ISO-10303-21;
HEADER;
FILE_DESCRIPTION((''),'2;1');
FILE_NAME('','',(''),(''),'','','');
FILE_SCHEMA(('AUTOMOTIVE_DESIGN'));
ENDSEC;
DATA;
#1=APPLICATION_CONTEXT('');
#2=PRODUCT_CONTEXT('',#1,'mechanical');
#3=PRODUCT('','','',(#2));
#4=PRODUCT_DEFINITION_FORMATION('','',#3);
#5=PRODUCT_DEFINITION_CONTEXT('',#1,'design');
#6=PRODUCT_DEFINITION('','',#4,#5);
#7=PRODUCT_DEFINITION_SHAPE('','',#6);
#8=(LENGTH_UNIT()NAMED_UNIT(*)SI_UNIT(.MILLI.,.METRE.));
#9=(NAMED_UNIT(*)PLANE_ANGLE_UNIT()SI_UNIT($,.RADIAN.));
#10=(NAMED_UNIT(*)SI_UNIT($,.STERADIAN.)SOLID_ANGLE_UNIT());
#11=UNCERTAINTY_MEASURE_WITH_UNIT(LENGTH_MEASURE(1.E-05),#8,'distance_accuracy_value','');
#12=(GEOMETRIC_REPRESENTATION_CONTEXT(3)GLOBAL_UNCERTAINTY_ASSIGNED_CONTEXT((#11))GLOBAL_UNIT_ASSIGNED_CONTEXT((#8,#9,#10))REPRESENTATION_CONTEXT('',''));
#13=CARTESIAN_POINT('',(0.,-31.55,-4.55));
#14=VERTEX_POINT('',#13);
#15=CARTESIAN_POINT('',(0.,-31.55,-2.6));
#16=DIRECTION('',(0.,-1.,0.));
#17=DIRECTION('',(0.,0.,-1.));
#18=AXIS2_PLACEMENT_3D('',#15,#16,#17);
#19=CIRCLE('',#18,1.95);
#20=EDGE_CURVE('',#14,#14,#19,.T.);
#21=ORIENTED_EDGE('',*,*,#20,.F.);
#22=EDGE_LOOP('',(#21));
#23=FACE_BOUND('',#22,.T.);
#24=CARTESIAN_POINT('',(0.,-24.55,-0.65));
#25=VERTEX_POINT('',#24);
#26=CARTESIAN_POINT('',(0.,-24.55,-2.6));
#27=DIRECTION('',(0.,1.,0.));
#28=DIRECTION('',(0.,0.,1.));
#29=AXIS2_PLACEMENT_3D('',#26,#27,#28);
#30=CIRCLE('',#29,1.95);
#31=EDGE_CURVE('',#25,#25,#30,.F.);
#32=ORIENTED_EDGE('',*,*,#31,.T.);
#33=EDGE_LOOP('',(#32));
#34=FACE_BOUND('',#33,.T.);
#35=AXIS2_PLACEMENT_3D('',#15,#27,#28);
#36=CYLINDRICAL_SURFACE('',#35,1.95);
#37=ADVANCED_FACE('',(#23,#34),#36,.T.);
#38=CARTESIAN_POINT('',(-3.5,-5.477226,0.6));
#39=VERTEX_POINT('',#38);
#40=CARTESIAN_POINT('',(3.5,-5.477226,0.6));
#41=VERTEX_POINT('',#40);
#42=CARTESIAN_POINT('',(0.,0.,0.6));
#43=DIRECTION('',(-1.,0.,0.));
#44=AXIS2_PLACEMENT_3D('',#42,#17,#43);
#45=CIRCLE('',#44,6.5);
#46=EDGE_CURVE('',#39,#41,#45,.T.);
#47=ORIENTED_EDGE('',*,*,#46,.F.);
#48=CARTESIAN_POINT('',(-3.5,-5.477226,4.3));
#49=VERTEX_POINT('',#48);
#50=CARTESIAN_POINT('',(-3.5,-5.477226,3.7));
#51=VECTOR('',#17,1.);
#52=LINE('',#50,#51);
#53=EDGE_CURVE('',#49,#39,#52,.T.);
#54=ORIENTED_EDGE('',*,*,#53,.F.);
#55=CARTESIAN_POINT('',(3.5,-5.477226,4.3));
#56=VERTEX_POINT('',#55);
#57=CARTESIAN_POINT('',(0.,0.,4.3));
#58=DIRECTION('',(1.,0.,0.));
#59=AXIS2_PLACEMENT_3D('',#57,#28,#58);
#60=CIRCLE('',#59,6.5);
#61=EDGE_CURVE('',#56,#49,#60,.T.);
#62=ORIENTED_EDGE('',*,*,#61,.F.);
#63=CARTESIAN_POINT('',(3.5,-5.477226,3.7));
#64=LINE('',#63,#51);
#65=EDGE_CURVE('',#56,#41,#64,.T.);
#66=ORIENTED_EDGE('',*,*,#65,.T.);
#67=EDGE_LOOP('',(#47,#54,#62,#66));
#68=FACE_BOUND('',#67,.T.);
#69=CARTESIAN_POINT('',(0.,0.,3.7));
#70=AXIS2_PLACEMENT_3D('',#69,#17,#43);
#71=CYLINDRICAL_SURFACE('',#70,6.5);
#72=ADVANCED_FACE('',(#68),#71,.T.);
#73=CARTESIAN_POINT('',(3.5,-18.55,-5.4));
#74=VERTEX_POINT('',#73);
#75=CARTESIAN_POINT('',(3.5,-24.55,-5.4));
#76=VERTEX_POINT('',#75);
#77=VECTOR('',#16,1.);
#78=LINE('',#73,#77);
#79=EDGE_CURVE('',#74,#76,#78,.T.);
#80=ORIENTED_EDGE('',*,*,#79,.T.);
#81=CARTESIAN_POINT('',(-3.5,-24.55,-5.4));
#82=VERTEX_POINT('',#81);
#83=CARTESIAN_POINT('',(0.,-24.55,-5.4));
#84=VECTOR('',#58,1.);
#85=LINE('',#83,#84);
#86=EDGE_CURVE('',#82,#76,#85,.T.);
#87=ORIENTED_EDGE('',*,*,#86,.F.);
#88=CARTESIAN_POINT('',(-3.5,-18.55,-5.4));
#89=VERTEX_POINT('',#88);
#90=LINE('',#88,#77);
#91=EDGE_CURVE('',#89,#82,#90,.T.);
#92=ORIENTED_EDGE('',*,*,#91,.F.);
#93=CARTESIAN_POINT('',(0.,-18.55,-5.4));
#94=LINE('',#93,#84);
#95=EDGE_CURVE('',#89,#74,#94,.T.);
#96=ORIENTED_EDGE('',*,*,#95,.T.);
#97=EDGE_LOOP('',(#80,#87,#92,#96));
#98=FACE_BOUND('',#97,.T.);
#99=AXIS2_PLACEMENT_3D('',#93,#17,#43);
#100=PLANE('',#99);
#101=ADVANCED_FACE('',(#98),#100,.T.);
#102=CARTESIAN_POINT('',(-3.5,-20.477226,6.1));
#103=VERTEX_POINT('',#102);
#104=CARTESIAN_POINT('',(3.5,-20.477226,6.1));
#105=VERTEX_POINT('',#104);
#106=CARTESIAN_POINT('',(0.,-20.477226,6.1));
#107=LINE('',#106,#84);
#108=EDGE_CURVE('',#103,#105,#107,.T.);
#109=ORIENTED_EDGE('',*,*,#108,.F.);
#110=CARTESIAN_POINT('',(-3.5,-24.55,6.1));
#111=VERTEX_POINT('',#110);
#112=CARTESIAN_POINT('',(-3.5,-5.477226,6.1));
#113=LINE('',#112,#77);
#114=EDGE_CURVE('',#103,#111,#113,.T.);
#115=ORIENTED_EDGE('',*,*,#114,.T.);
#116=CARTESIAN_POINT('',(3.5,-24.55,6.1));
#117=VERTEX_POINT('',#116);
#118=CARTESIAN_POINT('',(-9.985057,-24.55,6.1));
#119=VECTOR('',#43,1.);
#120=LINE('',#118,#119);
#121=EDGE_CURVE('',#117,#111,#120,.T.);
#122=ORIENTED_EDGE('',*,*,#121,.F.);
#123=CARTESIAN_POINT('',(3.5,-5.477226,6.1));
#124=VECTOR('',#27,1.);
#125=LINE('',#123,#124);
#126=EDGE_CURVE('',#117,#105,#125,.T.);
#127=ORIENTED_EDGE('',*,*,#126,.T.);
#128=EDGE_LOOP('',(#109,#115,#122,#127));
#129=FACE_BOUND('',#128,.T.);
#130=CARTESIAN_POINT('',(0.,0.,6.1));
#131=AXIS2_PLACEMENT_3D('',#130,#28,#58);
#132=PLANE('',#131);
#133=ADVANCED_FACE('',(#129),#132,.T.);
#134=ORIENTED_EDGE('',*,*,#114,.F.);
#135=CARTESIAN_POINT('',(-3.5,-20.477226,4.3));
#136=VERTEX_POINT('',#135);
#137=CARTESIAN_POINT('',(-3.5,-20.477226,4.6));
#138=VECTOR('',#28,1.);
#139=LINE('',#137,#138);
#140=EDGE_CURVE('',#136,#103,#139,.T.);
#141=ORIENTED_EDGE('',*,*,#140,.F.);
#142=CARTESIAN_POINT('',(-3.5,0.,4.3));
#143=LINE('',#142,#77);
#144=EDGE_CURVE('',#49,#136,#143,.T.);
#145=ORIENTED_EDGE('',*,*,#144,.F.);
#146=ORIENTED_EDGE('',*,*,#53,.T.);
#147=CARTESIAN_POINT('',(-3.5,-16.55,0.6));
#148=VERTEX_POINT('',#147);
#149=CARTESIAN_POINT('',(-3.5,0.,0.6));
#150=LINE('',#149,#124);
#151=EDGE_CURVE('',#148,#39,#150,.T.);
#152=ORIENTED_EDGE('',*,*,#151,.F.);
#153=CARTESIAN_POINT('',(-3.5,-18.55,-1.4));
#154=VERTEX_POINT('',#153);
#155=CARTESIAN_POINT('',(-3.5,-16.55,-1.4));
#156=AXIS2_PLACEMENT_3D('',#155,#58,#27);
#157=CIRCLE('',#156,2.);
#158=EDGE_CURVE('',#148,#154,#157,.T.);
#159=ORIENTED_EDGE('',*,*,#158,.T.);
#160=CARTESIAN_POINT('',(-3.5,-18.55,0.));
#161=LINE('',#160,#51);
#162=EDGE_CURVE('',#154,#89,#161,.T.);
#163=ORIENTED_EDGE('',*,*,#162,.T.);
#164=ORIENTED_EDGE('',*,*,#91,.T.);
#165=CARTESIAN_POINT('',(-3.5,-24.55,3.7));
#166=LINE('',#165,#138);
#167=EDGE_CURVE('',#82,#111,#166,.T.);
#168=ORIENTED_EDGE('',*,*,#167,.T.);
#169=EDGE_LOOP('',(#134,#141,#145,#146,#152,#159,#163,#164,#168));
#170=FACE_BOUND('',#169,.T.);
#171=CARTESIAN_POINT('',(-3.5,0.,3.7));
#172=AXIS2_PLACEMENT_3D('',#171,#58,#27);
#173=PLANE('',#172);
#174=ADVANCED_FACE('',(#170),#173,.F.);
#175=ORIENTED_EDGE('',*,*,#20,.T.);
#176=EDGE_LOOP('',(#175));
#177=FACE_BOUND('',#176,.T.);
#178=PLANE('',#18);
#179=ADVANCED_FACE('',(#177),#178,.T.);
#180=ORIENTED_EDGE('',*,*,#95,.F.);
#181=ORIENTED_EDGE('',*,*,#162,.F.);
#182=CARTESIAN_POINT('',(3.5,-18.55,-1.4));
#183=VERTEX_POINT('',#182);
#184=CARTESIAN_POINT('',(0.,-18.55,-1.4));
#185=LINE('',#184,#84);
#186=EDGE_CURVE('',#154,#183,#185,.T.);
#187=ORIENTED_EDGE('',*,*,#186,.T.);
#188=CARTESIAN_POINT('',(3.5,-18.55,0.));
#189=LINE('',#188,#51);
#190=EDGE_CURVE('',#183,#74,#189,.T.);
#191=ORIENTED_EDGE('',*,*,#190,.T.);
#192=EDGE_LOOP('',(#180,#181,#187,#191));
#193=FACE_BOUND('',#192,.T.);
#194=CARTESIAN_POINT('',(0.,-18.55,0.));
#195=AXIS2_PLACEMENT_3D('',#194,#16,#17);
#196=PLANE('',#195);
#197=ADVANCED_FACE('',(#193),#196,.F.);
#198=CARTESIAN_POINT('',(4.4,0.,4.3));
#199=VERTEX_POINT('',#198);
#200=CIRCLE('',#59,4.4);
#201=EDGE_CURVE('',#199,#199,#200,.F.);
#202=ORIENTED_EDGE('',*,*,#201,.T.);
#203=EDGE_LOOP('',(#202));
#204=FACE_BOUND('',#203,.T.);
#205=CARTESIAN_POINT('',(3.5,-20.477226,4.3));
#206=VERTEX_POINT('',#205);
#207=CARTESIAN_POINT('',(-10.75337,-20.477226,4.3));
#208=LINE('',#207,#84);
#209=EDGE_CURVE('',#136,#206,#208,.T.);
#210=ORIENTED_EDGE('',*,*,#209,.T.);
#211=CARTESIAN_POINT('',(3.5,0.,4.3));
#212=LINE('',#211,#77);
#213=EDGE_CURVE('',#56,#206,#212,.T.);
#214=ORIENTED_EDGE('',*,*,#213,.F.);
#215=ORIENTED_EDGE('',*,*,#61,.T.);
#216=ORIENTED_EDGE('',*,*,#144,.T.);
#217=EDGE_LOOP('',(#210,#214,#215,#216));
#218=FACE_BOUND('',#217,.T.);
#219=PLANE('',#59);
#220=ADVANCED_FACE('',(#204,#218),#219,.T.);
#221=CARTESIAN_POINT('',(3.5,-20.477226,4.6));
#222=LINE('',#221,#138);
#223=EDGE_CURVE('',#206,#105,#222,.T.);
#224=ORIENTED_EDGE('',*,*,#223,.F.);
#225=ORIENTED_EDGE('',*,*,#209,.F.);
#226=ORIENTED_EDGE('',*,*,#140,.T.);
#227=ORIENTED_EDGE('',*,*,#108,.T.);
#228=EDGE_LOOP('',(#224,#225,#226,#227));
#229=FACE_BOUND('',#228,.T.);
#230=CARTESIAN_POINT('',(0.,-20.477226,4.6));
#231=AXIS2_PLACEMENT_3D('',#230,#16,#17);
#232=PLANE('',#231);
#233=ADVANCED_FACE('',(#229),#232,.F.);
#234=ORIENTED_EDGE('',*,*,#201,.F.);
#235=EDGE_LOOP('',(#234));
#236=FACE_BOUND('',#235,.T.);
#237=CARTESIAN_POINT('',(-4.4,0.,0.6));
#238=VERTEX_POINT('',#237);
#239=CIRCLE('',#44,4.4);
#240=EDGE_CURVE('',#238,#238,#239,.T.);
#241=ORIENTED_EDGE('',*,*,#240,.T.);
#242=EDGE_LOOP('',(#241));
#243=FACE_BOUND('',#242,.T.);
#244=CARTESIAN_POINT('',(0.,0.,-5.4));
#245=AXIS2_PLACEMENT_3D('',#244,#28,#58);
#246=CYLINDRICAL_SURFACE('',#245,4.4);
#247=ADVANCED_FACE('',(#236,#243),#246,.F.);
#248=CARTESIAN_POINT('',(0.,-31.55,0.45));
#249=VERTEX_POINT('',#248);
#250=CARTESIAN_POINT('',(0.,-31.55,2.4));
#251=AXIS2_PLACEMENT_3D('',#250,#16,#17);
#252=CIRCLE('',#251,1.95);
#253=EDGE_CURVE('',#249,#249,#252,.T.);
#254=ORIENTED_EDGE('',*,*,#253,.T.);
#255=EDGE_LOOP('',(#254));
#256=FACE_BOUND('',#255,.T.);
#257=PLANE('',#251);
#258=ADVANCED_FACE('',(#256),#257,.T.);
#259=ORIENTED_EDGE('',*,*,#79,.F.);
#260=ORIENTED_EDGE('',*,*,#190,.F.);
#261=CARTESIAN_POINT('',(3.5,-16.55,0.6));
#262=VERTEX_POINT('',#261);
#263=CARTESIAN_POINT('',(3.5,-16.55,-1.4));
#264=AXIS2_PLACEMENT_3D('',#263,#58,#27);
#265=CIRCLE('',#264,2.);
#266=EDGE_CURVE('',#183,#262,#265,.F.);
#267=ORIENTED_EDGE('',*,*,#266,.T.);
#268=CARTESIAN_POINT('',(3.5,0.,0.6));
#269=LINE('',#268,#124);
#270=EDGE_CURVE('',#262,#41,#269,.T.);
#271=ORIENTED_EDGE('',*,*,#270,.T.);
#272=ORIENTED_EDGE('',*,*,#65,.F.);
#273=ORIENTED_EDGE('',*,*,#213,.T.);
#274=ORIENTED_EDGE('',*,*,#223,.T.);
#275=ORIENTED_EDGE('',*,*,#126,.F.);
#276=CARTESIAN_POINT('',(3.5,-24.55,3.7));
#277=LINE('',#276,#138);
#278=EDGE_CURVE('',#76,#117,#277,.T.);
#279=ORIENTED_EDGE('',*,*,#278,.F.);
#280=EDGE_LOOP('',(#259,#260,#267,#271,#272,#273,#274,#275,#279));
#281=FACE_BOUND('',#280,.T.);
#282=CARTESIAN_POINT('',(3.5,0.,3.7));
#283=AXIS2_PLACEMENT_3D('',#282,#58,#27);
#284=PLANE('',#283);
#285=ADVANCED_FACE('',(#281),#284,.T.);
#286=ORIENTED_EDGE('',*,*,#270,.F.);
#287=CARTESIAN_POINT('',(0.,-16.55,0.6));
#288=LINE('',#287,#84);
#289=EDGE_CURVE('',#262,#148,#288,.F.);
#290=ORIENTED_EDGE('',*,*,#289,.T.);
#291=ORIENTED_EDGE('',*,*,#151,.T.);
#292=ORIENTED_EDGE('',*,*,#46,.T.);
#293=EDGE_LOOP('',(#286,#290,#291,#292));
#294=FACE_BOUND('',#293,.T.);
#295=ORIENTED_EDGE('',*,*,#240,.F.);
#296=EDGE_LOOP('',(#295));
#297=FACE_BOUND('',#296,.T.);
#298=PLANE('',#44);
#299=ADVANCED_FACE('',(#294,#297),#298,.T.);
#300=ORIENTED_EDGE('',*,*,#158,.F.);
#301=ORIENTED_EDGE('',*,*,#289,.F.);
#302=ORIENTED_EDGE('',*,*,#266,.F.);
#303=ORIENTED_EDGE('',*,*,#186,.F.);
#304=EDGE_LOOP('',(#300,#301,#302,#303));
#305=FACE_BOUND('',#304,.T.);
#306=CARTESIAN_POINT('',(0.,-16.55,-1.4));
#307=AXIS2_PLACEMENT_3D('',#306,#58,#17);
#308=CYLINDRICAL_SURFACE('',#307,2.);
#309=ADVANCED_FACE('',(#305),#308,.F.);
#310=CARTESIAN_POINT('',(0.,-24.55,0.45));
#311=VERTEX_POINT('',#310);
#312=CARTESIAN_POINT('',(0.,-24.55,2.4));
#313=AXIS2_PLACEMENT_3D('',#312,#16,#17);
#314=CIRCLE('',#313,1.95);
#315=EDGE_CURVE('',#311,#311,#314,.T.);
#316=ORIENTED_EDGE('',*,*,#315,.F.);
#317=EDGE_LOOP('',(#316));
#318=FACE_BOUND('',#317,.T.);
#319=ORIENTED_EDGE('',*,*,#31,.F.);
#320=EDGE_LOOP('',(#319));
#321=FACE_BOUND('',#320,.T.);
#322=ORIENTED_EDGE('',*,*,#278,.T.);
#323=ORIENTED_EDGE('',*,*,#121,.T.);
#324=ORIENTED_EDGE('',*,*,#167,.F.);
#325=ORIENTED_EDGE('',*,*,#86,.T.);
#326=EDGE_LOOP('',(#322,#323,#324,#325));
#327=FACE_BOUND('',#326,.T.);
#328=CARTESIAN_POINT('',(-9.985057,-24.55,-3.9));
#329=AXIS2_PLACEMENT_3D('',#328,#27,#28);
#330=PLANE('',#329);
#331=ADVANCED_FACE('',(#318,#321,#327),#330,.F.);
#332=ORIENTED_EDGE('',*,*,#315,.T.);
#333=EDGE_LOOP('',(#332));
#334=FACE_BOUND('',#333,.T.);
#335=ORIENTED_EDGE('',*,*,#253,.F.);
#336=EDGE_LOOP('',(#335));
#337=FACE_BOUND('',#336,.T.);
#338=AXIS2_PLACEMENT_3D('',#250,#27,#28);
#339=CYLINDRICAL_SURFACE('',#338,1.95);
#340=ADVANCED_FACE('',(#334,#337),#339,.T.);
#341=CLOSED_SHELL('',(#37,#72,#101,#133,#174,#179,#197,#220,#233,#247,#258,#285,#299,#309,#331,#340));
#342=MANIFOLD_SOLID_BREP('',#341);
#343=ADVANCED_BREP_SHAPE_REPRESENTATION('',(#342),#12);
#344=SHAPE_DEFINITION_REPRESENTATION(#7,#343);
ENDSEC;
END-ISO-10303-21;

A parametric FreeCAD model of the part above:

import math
import FreeCAD as App
import Part
import Sketcher

V = App.Vector


def edges_at(feature, points):
    """Names of the edges that pass closest to the given points."""
    edges = feature.Shape.Edges
    near = lambda p: min(range(len(edges)), key=lambda i: edges[i].distToShape(Part.Vertex(*p))[0])
    return sorted({f"Edge{near(p) + 1}" for p in points})


def add_polygon(sketch, points):
    """Adds a closed chain of lines whose ends are joined by coincident constraints."""
    first, n = sketch.GeometryCount, len(points)
    for a, b in zip(points, points[1:] + points[:1]):
        sketch.addGeometry(Part.LineSegment(App.Vector(*a, 0), App.Vector(*b, 0)), False)
    for i in range(n):
        sketch.addConstraint(Sketcher.Constraint("Coincident", first + i, 2, first + (i + 1) % n, 1))

doc = App.newDocument("Part")
params = doc.addObject("Spreadsheet::Sheet", "Params")
for row, (alias, value) in enumerate([
    ("sketch1_diameter", "5.9 mm"),
    ("sketch1_radius", "6.5 mm"),
    ("sketch1_radius2", "3.5 mm"),
    ("sketch1_radius3", "5.5 mm"),
    ("pad1_length", "3.7 mm"),
    ("sketch2_height", "0.6 mm"),
    ("sketch2_width", "16.95 mm"),
    ("sketch3_diameter", "3 mm"),
    ("sketch3_diameter2", "5.9 mm"),
    ("pad2_length", "3.1 mm"),
    ("sketch4_diameter", "5 mm"),
    ("pocket2_length", "1.5 mm"),
    ("sketch5_diameter", "3 mm"),
    ("sketch5_radius", "6.5 mm"),
    ("sketch5_radius2", "5.5 mm"),
    ("sketch5_radius3", "3.5 mm"),
    ("pad3_length", "0.4 mm"),
    ("sketch6_diameter", "5.9 mm"),
    ("sketch6_radius", "6.5 mm"),
    ("sketch6_radius2", "5.5 mm"),
    ("sketch6_radius3", "3.5 mm"),
    ("pad4_length", "2.4 mm"),
    ("pocket3_length", "0.6 mm"),
    ("sketch8_diameter", "3 mm"),
    ("sketch8_radius", "6.5 mm"),
    ("sketch8_radius2", "3.5 mm"),
    ("sketch8_radius3", "5.5 mm"),
    ("pad5_length", "2.6 mm"),
    ("sketch9_diameter", "11 mm"),
    ("sketch9_diameter2", "7 mm"),
    ("pad6_length", "5.5 mm"),
    ("sketch10_width", "7 mm"),
    ("pocket4_length", "5.5 mm"),
    ("pocket5_length", "10 mm"),
    ("sketch12_width", "7 mm"),
    ("sketch12_height", "6 mm"),
    ("pad7_length", "6 mm"),
    ("fillet_radius", "2 mm"),
    ("sketch13_diameter", "3.9 mm"),
    ("pad8_length", "7 mm"),
    ("sketch14_diameter", "5.9 mm"),
    ("sketch14_radius", "6.5 mm"),
    ("sketch14_radius2", "5.5 mm"),
    ("sketch14_radius3", "3.5 mm"),
    ("sketch14_height", "15 mm"),
    ("pocket6_length", "1.5 mm"),
    ("sketch15_diameter", "5.9 mm"),
    ("sketch15_radius", "6.5 mm"),
    ("sketch15_width", "7 mm"),
    ("sketch15_height", "15 mm"),
    ("pad9_length", "4 mm"),
    ("sketch16_diameter", "8.8 mm"),
    ("pocket8_length", "0.3 mm"),
], start=1):
    params.set(f"A{row}", alias)
    params.set(f"B{row}", "=" + value)
    params.setAlias(f"B{row}", alias)

body = doc.addObject("PartDesign::Body", "Body")

# Sketch on XY plane
sketch1 = body.newObject("Sketcher::SketchObject", "Sketch")
sketch1.AttachmentSupport = (doc.getObject("XY_Plane"), [""])
sketch1.MapMode = "FlatFace"
sketch1.addGeometry([
    Part.LineSegment(V(3.5, -29.522774, 0), V(3.5, -5.477226, 0)),  # 0
    Part.ArcOfCircle(Part.Circle(V(0, 0, 0), V(0, 0, 1), 6.5), math.radians(-57.42103), math.radians(0)),  # 1
    Part.ArcOfCircle(Part.Circle(V(0, 0, 0), V(0, 0, 1), 6.5), math.radians(0), math.radians(237.42103)),  # 2
    Part.LineSegment(V(-3.5, -5.477226, 0), V(-3.5, -29.522774, 0)),  # 3
    Part.ArcOfCircle(Part.Circle(V(0, -35, 0), V(0, 0, 1), 6.5), math.radians(122.57897), math.radians(360)),  # 4
    Part.ArcOfCircle(Part.Circle(V(0, -35, 0), V(0, 0, 1), 6.5), math.radians(0), math.radians(57.42103)),  # 5
    Part.LineSegment(V(-5.5, -35, 0), V(-3.5, -35, 0)),  # 6
    Part.ArcOfCircle(Part.Circle(V(0, -35, 0), V(0, 0, 1), 3.5), math.radians(180), math.radians(244.623066)),  # 7
    Part.LineSegment(V(-1.5, -38.162278, 0), V(-1.5, -40.291503, 0)),  # 8
    Part.ArcOfCircle(Part.Circle(V(0, -35, 0), V(0, 0, 1), 5.5), math.radians(180), math.radians(254.17338)),  # 9
    Part.ArcOfCircle(Part.Circle(V(0, -35, 0), V(0, 0, 1), 3.5), math.radians(-64.623066), math.radians(0)),  # 10
    Part.LineSegment(V(3.5, -35, 0), V(5.5, -35, 0)),  # 11
    Part.ArcOfCircle(Part.Circle(V(0, -35, 0), V(0, 0, 1), 5.5), math.radians(-74.17338), math.radians(0)),  # 12
    Part.LineSegment(V(1.5, -40.291503, 0), V(1.5, -38.162278, 0)),  # 13
    Part.Circle(V(0, -35, 0), V(0, 0, 1), 2.95),  # 14
    Part.ArcOfCircle(Part.Circle(V(0, 0, 0), V(0, 0, 1), 5.5), math.radians(105.82662), math.radians(180)),  # 15
    Part.LineSegment(V(-1.5, 5.291503, 0), V(-1.5, 3.162278, 0)),  # 16
    Part.ArcOfCircle(Part.Circle(V(0, 0, 0), V(0, 0, 1), 3.5), math.radians(115.376934), math.radians(180)),  # 17
    Part.LineSegment(V(-3.5, 0, 0), V(-5.5, 0, 0)),  # 18
    Part.Circle(V(0, 0, 0), V(0, 0, 1), 2.95),  # 19
    Part.LineSegment(V(5.5, 0, 0), V(3.5, 0, 0)),  # 20
    Part.ArcOfCircle(Part.Circle(V(0, 0, 0), V(0, 0, 1), 3.5), math.radians(0), math.radians(64.623066)),  # 21
    Part.LineSegment(V(1.5, 3.162278, 0), V(1.5, 5.291503, 0)),  # 22
    Part.ArcOfCircle(Part.Circle(V(0, 0, 0), V(0, 0, 1), 5.5), math.radians(0), math.radians(74.17338)),  # 23
], False)
sketch1.addConstraint([
    Sketcher.Constraint("Coincident", 0, 2, 1, 1),
    Sketcher.Constraint("Tangent", 1, 2, 2, 1),
    Sketcher.Constraint("Coincident", 2, 2, 3, 1),
    Sketcher.Constraint("Coincident", 3, 2, 4, 1),
    Sketcher.Constraint("Tangent", 4, 2, 5, 1),
    Sketcher.Constraint("Coincident", 5, 2, 0, 1),
    Sketcher.Constraint("Coincident", 6, 2, 7, 1),
    Sketcher.Constraint("Coincident", 7, 2, 8, 1),
    Sketcher.Constraint("Coincident", 8, 2, 9, 2),
    Sketcher.Constraint("Coincident", 9, 1, 6, 1),
    Sketcher.Constraint("Coincident", 10, 2, 11, 1),
    Sketcher.Constraint("Coincident", 11, 2, 12, 2),
    Sketcher.Constraint("Coincident", 12, 1, 13, 1),
    Sketcher.Constraint("Coincident", 13, 2, 10, 1),
    Sketcher.Constraint("Coincident", 15, 1, 16, 1),
    Sketcher.Constraint("Coincident", 16, 2, 17, 1),
    Sketcher.Constraint("Coincident", 17, 2, 18, 1),
    Sketcher.Constraint("Coincident", 18, 2, 15, 2),
    Sketcher.Constraint("Coincident", 20, 2, 21, 1),
    Sketcher.Constraint("Coincident", 21, 2, 22, 1),
    Sketcher.Constraint("Coincident", 22, 2, 23, 2),
    Sketcher.Constraint("Coincident", 23, 1, 20, 1),
    Sketcher.Constraint("Vertical", 0),
    Sketcher.Constraint("Vertical", 3),
    Sketcher.Constraint("Horizontal", 6),
    Sketcher.Constraint("Vertical", 8),
    Sketcher.Constraint("Horizontal", 11),
    Sketcher.Constraint("Vertical", 13),
    Sketcher.Constraint("Vertical", 16),
    Sketcher.Constraint("Horizontal", 18),
    Sketcher.Constraint("Horizontal", 20),
    Sketcher.Constraint("Vertical", 22),
    Sketcher.Constraint("Coincident", 1, 3, -1, 1),
    Sketcher.Constraint("Coincident", 15, 3, -1, 1),
    Sketcher.Constraint("Coincident", 17, 3, -1, 1),
    Sketcher.Constraint("Coincident", 19, 3, -1, 1),
    Sketcher.Constraint("Coincident", 21, 3, -1, 1),
    Sketcher.Constraint("Coincident", 23, 3, -1, 1),
    Sketcher.Constraint("Coincident", 7, 3, 4, 3),
    Sketcher.Constraint("Coincident", 9, 3, 4, 3),
    Sketcher.Constraint("Coincident", 10, 3, 4, 3),
    Sketcher.Constraint("Coincident", 12, 3, 4, 3),
    Sketcher.Constraint("Coincident", 14, 3, 4, 3),
    Sketcher.Constraint("Equal", 1, 2),
    Sketcher.Constraint("Equal", 2, 4),
    Sketcher.Constraint("Equal", 4, 5),
    Sketcher.Constraint("Equal", 7, 10),
    Sketcher.Constraint("Equal", 9, 12),
    Sketcher.Constraint("Equal", 12, 15),
    Sketcher.Constraint("Equal", 10, 17),
    Sketcher.Constraint("Equal", 14, 19),
    Sketcher.Constraint("Equal", 17, 21),
    Sketcher.Constraint("Equal", 15, 23),
    Sketcher.Constraint("Symmetric", 3, 2, 5, 2, -2),
    Sketcher.Constraint("PointOnObject", 1, 2, -1),
    Sketcher.Constraint("PointOnObject", 17, 2, -1),
    Sketcher.Constraint("PointOnObject", 20, 2, -1),
    Sketcher.Constraint("Horizontal", 14, 3, 4, 2),
    Sketcher.Constraint("Horizontal", 4, 2, 6, 2),
    Sketcher.Constraint("Horizontal", 9, 1, 10, 2),
    Sketcher.Constraint("Horizontal", 8, 2, 12, 1),
    Sketcher.Constraint("Horizontal", 16, 2, 21, 2),
    Sketcher.Constraint("Vertical", 3, 2, 6, 2),
    Sketcher.Constraint("Vertical", 8, 2, 15, 1),
    Sketcher.Constraint("Diameter", 14, 5.9),
    Sketcher.Constraint("Radius", 1, 6.5),
    Sketcher.Constraint("Radius", 7, 3.5),
    Sketcher.Constraint("Radius", 9, 5.5),
    Sketcher.Constraint("DistanceY", 4, 3, -1, 1, 35.0),
    Sketcher.Constraint("DistanceX", 9, 1, 7, 2, 4.0),
])
sketch1.setExpression("Constraints[64]", "Params.sketch1_diameter")
sketch1.setExpression("Constraints[65]", "Params.sketch1_radius")
sketch1.setExpression("Constraints[66]", "Params.sketch1_radius2")
sketch1.setExpression("Constraints[67]", "Params.sketch1_radius3")
pad1 = body.newObject("PartDesign::Pad", "Pad")
pad1.Profile = sketch1
pad1.setExpression("Length", "Params.pad1_length")

# Sketch on YZ plane
sketch2 = body.newObject("Sketcher::SketchObject", "Sketch001")
sketch2.AttachmentSupport = (doc.getObject("YZ_Plane"), [""])
sketch2.MapMode = "FlatFace"
add_polygon(sketch2, [(-24.55, 3.7), (-41.5, 3.7), (-41.5, 3.1), (-24.55, 3.1)])  # lines 0-3
sketch2.addConstraint([
    Sketcher.Constraint("Horizontal", 0),
    Sketcher.Constraint("Vertical", 1),
    Sketcher.Constraint("Horizontal", 2),
    Sketcher.Constraint("Vertical", 3),
    Sketcher.Constraint("DistanceY", 1, 2, 1, 1, 0.6),
    Sketcher.Constraint("DistanceX", 0, 2, 0, 1, 16.95),
    Sketcher.Constraint("DistanceX", 0, 2, -1, 1, 41.5),
    Sketcher.Constraint("DistanceY", -1, 1, 0, 2, 3.7),
])
sketch2.setExpression("Constraints[8]", "Params.sketch2_height")
sketch2.setExpression("Constraints[9]", "Params.sketch2_width")
pocket1 = body.newObject("PartDesign::Pocket", "Pocket")
pocket1.Profile = sketch2
pocket1.Type = "ThroughAll"
pocket1.Midplane = True

# Sketch on XY plane
sketch3 = body.newObject("Sketcher::SketchObject", "Sketch002")
sketch3.AttachmentSupport = (doc.getObject("XY_Plane"), [""])
sketch3.MapMode = "FlatFace"
sketch3.addGeometry([
    Part.Circle(V(0, -35, 0), V(0, 0, 1), 2.95),
    Part.Circle(V(0, -35, 0), V(0, 0, 1), 1.5),
], False)
sketch3.addConstraint([
    Sketcher.Constraint("Coincident", 1, 3, 0, 3),
    Sketcher.Constraint("PointOnObject", 0, 3, -2),
    Sketcher.Constraint("Diameter", 1, 3.0),
    Sketcher.Constraint("Diameter", 0, 5.9),
    Sketcher.Constraint("DistanceY", 0, 3, -1, 1, 35.0),
])
sketch3.setExpression("Constraints[2]", "Params.sketch3_diameter")
sketch3.setExpression("Constraints[3]", "Params.sketch3_diameter2")
pad2 = body.newObject("PartDesign::Pad", "Pad001")
pad2.Profile = sketch3
pad2.setExpression("Length", "Params.pad2_length")

# Sketch on XY plane
sketch4 = body.newObject("Sketcher::SketchObject", "Sketch003")
sketch4.AttachmentSupport = (doc.getObject("XY_Plane"), [""])
sketch4.MapMode = "FlatFace"
sketch4.addGeometry(Part.Circle(V(0, -35, 0), V(0, 0, 1), 2.5), False)
sketch4.addConstraint([
    Sketcher.Constraint("PointOnObject", 0, 3, -2),
    Sketcher.Constraint("Diameter", 0, 5.0),
    Sketcher.Constraint("DistanceY", 0, 3, -1, 1, 35.0),
])
sketch4.setExpression("Constraints[1]", "Params.sketch4_diameter")
pocket2 = body.newObject("PartDesign::Pocket", "Pocket001")
pocket2.Profile = sketch4
pocket2.setExpression("Length", "Params.pocket2_length")
pocket2.Reversed = True

# Sketch on XY plane
sketch5 = body.newObject("Sketcher::SketchObject", "Sketch004")
sketch5.AttachmentSupport = (doc.getObject("XY_Plane"), [""])
sketch5.MapMode = "FlatFace"
sketch5.AttachmentOffset = App.Placement(V(0, 0, 3.1), App.Rotation())
sketch5.addGeometry([
    Part.LineSegment(V(3.5, -24.55, 0), V(-3.5, -24.55, 0)),  # 0
    Part.LineSegment(V(-3.5, -24.55, 0), V(-3.5, -29.522774, 0)),  # 1
    Part.ArcOfCircle(Part.Circle(V(0, -35, 0), V(0, 0, 1), 6.5), math.radians(122.57897), math.radians(417.42103)),  # 2
    Part.LineSegment(V(3.5, -29.522774, 0), V(3.5, -24.55, 0)),  # 3
    Part.ArcOfCircle(Part.Circle(V(0, -35, 0), V(0, 0, 1), 5.5), math.radians(180), math.radians(254.17338)),  # 4
    Part.LineSegment(V(-5.5, -35, 0), V(-3.5, -35, 0)),  # 5
    Part.ArcOfCircle(Part.Circle(V(0, -35, 0), V(0, 0, 1), 3.5), math.radians(180), math.radians(244.623066)),  # 6
    Part.LineSegment(V(-1.5, -38.162278, 0), V(-1.5, -40.291503, 0)),  # 7
    Part.LineSegment(V(1.5, -40.291503, 0), V(1.5, -38.162278, 0)),  # 8
    Part.ArcOfCircle(Part.Circle(V(0, -35, 0), V(0, 0, 1), 3.5), math.radians(-64.623066), math.radians(0)),  # 9
    Part.LineSegment(V(3.5, -35, 0), V(5.5, -35, 0)),  # 10
    Part.ArcOfCircle(Part.Circle(V(0, -35, 0), V(0, 0, 1), 5.5), math.radians(-74.17338), math.radians(0)),  # 11
    Part.Circle(V(0, -35, 0), V(0, 0, 1), 1.5),  # 12
], False)
sketch5.addConstraint([
    Sketcher.Constraint("Coincident", 0, 2, 1, 1),
    Sketcher.Constraint("Coincident", 1, 2, 2, 1),
    Sketcher.Constraint("Coincident", 2, 2, 3, 1),
    Sketcher.Constraint("Coincident", 3, 2, 0, 1),
    Sketcher.Constraint("Coincident", 4, 1, 5, 1),
    Sketcher.Constraint("Coincident", 5, 2, 6, 1),
    Sketcher.Constraint("Coincident", 6, 2, 7, 1),
    Sketcher.Constraint("Coincident", 7, 2, 4, 2),
    Sketcher.Constraint("Coincident", 8, 2, 9, 1),
    Sketcher.Constraint("Coincident", 9, 2, 10, 1),
    Sketcher.Constraint("Coincident", 10, 2, 11, 2),
    Sketcher.Constraint("Coincident", 11, 1, 8, 1),
    Sketcher.Constraint("Horizontal", 0),
    Sketcher.Constraint("Vertical", 1),
    Sketcher.Constraint("Vertical", 3),
    Sketcher.Constraint("Horizontal", 5),
    Sketcher.Constraint("Vertical", 7),
    Sketcher.Constraint("Vertical", 8),
    Sketcher.Constraint("Horizontal", 10),
    Sketcher.Constraint("Coincident", 4, 3, 2, 3),
    Sketcher.Constraint("Coincident", 6, 3, 2, 3),
    Sketcher.Constraint("Coincident", 9, 3, 2, 3),
    Sketcher.Constraint("Coincident", 11, 3, 2, 3),
    Sketcher.Constraint("Coincident", 12, 3, 2, 3),
    Sketcher.Constraint("Equal", 6, 9),
    Sketcher.Constraint("Equal", 4, 11),
    Sketcher.Constraint("Symmetric", 1, 2, 2, 2, -2),
    Sketcher.Constraint("Horizontal", 12, 3, 4, 1),
    Sketcher.Constraint("Horizontal", 6, 2, 8, 2),
    Sketcher.Constraint("Horizontal", 5, 2, 9, 2),
    Sketcher.Constraint("Vertical", 1, 2, 5, 2),
    Sketcher.Constraint("Diameter", 12, 3.0),
    Sketcher.Constraint("Radius", 2, 6.5),
    Sketcher.Constraint("Radius", 4, 5.5),
    Sketcher.Constraint("Radius", 6, 3.5),
    Sketcher.Constraint("DistanceY", 2, 3, -1, 1, 35.0),
    Sketcher.Constraint("DistanceX", 6, 2, 8, 2, 3.0),
    Sketcher.Constraint("DistanceY", 0, 2, -1, 1, 24.55),
])
sketch5.setExpression("Constraints[31]", "Params.sketch5_diameter")
sketch5.setExpression("Constraints[32]", "Params.sketch5_radius")
sketch5.setExpression("Constraints[33]", "Params.sketch5_radius2")
sketch5.setExpression("Constraints[34]", "Params.sketch5_radius3")
pad3 = body.newObject("PartDesign::Pad", "Pad002")
pad3.Profile = sketch5
pad3.setExpression("Length", "Params.pad3_length")

# Sketch on XY plane
sketch6 = body.newObject("Sketcher::SketchObject", "Sketch005")
sketch6.AttachmentSupport = (doc.getObject("XY_Plane"), [""])
sketch6.MapMode = "FlatFace"
sketch6.AttachmentOffset = App.Placement(V(0, 0, 3.7), App.Rotation())
sketch6.addGeometry([
    Part.LineSegment(V(-3.5, -5.477226, 0), V(-3.5, -24.55, 0)),  # 0
    Part.LineSegment(V(-3.5, -24.55, 0), V(3.5, -24.55, 0)),  # 1
    Part.LineSegment(V(3.5, -24.55, 0), V(3.5, -5.477226, 0)),  # 2
    Part.ArcOfCircle(Part.Circle(V(0, 0, 0), V(0, 0, 1), 6.5), math.radians(-57.42103), math.radians(237.42103)),  # 3
    Part.Circle(V(0, 0, 0), V(0, 0, 1), 2.95),  # 4
    Part.ArcOfCircle(Part.Circle(V(0, 0, 0), V(0, 0, 1), 5.5), math.radians(105.82662), math.radians(180)),  # 5
    Part.LineSegment(V(-1.5, 5.291503, 0), V(-1.5, 3.162278, 0)),  # 6
    Part.ArcOfCircle(Part.Circle(V(0, 0, 0), V(0, 0, 1), 3.5), math.radians(115.376934), math.radians(180)),  # 7
    Part.LineSegment(V(-3.5, 0, 0), V(-5.5, 0, 0)),  # 8
    Part.LineSegment(V(1.5, 3.162278, 0), V(1.5, 5.291503, 0)),  # 9
    Part.ArcOfCircle(Part.Circle(V(0, 0, 0), V(0, 0, 1), 5.5), math.radians(0), math.radians(74.17338)),  # 10
    Part.LineSegment(V(5.5, 0, 0), V(3.5, 0, 0)),  # 11
    Part.ArcOfCircle(Part.Circle(V(0, 0, 0), V(0, 0, 1), 3.5), math.radians(0), math.radians(64.623066)),  # 12
], False)
sketch6.addConstraint([
    Sketcher.Constraint("Coincident", 0, 2, 1, 1),
    Sketcher.Constraint("Coincident", 1, 2, 2, 1),
    Sketcher.Constraint("Coincident", 2, 2, 3, 1),
    Sketcher.Constraint("Coincident", 3, 2, 0, 1),
    Sketcher.Constraint("Coincident", 5, 1, 6, 1),
    Sketcher.Constraint("Coincident", 6, 2, 7, 1),
    Sketcher.Constraint("Coincident", 7, 2, 8, 1),
    Sketcher.Constraint("Coincident", 8, 2, 5, 2),
    Sketcher.Constraint("Coincident", 9, 2, 10, 2),
    Sketcher.Constraint("Coincident", 10, 1, 11, 1),
    Sketcher.Constraint("Coincident", 11, 2, 12, 1),
    Sketcher.Constraint("Coincident", 12, 2, 9, 1),
    Sketcher.Constraint("Vertical", 0),
    Sketcher.Constraint("Horizontal", 1),
    Sketcher.Constraint("Vertical", 2),
    Sketcher.Constraint("Vertical", 6),
    Sketcher.Constraint("Horizontal", 8),
    Sketcher.Constraint("Vertical", 9),
    Sketcher.Constraint("Horizontal", 11),
    Sketcher.Constraint("Coincident", 3, 3, -1, 1),
    Sketcher.Constraint("Coincident", 4, 3, -1, 1),
    Sketcher.Constraint("Coincident", 5, 3, -1, 1),
    Sketcher.Constraint("Coincident", 7, 3, -1, 1),
    Sketcher.Constraint("Coincident", 10, 3, -1, 1),
    Sketcher.Constraint("Coincident", 12, 3, -1, 1),
    Sketcher.Constraint("Equal", 5, 10),
    Sketcher.Constraint("Equal", 7, 12),
    Sketcher.Constraint("PointOnObject", 7, 2, -1),
    Sketcher.Constraint("PointOnObject", 10, 1, -1),
    Sketcher.Constraint("Horizontal", 2, 2, 3, 2),
    Sketcher.Constraint("Horizontal", 5, 1, 9, 2),
    Sketcher.Constraint("Vertical", 3, 2, 7, 2),
    Sketcher.Constraint("Diameter", 4, 5.9),
    Sketcher.Constraint("Radius", 3, 6.5),
    Sketcher.Constraint("Radius", 5, 5.5),
    Sketcher.Constraint("Radius", 7, 3.5),
    Sketcher.Constraint("DistanceX", 8, 2, 6, 2, 4.0),
    Sketcher.Constraint("DistanceY", 0, 2, -1, 1, 24.55),
])
sketch6.setExpression("Constraints[32]", "Params.sketch6_diameter")
sketch6.setExpression("Constraints[33]", "Params.sketch6_radius")
sketch6.setExpression("Constraints[34]", "Params.sketch6_radius2")
sketch6.setExpression("Constraints[35]", "Params.sketch6_radius3")
pad4 = body.newObject("PartDesign::Pad", "Pad003")
pad4.Profile = sketch6
pad4.setExpression("Length", "Params.pad4_length")

# Sketch on XY plane
sketch7 = body.newObject("Sketcher::SketchObject", "Sketch006")
sketch7.AttachmentSupport = (doc.getObject("XY_Plane"), [""])
sketch7.MapMode = "FlatFace"
add_polygon(sketch7, [(-10.099524, 7.819477), (-10.099524, -42.727324), (12.00504, -42.727324), (12.00504, 7.819477)])  # lines 0-3
sketch7.addConstraint([
    Sketcher.Constraint("Vertical", 0),
    Sketcher.Constraint("Horizontal", 1),
    Sketcher.Constraint("Vertical", 2),
    Sketcher.Constraint("Horizontal", 3),
    Sketcher.Constraint("DistanceY", 0, 2, 0, 1, 50.546801),
    Sketcher.Constraint("DistanceX", 1, 1, 1, 2, 22.104565),
    Sketcher.Constraint("DistanceX", -1, 1, 1, 2, 12.00504),
    Sketcher.Constraint("DistanceY", 0, 2, -1, 1, 42.727324),
])
pocket3 = body.newObject("PartDesign::Pocket", "Pocket002")
pocket3.Profile = sketch7
pocket3.setExpression("Length", "Params.pocket3_length")
pocket3.Reversed = True

# Sketch on XY plane
sketch8 = body.newObject("Sketcher::SketchObject", "Sketch007")
sketch8.AttachmentSupport = (doc.getObject("XY_Plane"), [""])
sketch8.MapMode = "FlatFace"
sketch8.AttachmentOffset = App.Placement(V(0, 0, 3.5), App.Rotation())
sketch8.addGeometry([
    Part.LineSegment(V(-3.5, -24.55, 0), V(-3.5, -29.522774, 0)),  # 0
    Part.ArcOfCircle(Part.Circle(V(0, -35, 0), V(0, 0, 1), 6.5), math.radians(122.57897), math.radians(360)),  # 1
    Part.ArcOfCircle(Part.Circle(V(0, -35, 0), V(0, 0, 1), 6.5), math.radians(0), math.radians(57.42103)),  # 2
    Part.LineSegment(V(3.5, -29.522774, 0), V(3.5, -24.55, 0)),  # 3
    Part.LineSegment(V(3.5, -24.55, 0), V(-3.5, -24.55, 0)),  # 4
    Part.LineSegment(V(-5.5, -35, 0), V(-3.5, -35, 0)),  # 5
    Part.ArcOfCircle(Part.Circle(V(0, -35, 0), V(0, 0, 1), 3.5), math.radians(180), math.radians(244.623066)),  # 6
    Part.LineSegment(V(-1.5, -38.162278, 0), V(-1.5, -40.291503, 0)),  # 7
    Part.ArcOfCircle(Part.Circle(V(0, -35, 0), V(0, 0, 1), 5.5), math.radians(180), math.radians(254.17338)),  # 8
    Part.ArcOfCircle(Part.Circle(V(0, -35, 0), V(0, 0, 1), 3.5), math.radians(-64.623066), math.radians(0)),  # 9
    Part.LineSegment(V(3.5, -35, 0), V(5.5, -35, 0)),  # 10
    Part.ArcOfCircle(Part.Circle(V(0, -35, 0), V(0, 0, 1), 5.5), math.radians(-74.17338), math.radians(0)),  # 11
    Part.LineSegment(V(1.5, -40.291503, 0), V(1.5, -38.162278, 0)),  # 12
    Part.Circle(V(0, -35, 0), V(0, 0, 1), 1.5),  # 13
], False)
sketch8.addConstraint([
    Sketcher.Constraint("Coincident", 0, 2, 1, 1),
    Sketcher.Constraint("Tangent", 1, 2, 2, 1),
    Sketcher.Constraint("Coincident", 2, 2, 3, 1),
    Sketcher.Constraint("Coincident", 3, 2, 4, 1),
    Sketcher.Constraint("Coincident", 4, 2, 0, 1),
    Sketcher.Constraint("Coincident", 5, 2, 6, 1),
    Sketcher.Constraint("Coincident", 6, 2, 7, 1),
    Sketcher.Constraint("Coincident", 7, 2, 8, 2),
    Sketcher.Constraint("Coincident", 8, 1, 5, 1),
    Sketcher.Constraint("Coincident", 9, 2, 10, 1),
    Sketcher.Constraint("Coincident", 10, 2, 11, 2),
    Sketcher.Constraint("Coincident", 11, 1, 12, 1),
    Sketcher.Constraint("Coincident", 12, 2, 9, 1),
    Sketcher.Constraint("Vertical", 0),
    Sketcher.Constraint("Vertical", 3),
    Sketcher.Constraint("Horizontal", 4),
    Sketcher.Constraint("Horizontal", 5),
    Sketcher.Constraint("Vertical", 7),
    Sketcher.Constraint("Horizontal", 10),
    Sketcher.Constraint("Vertical", 12),
    Sketcher.Constraint("Coincident", 6, 3, 1, 3),
    Sketcher.Constraint("Coincident", 8, 3, 1, 3),
    Sketcher.Constraint("Coincident", 9, 3, 1, 3),
    Sketcher.Constraint("Coincident", 11, 3, 1, 3),
    Sketcher.Constraint("Coincident", 13, 3, 1, 3),
    Sketcher.Constraint("Equal", 1, 2),
    Sketcher.Constraint("Equal", 6, 9),
    Sketcher.Constraint("Equal", 8, 11),
    Sketcher.Constraint("Symmetric", 0, 2, 2, 2, -2),
    Sketcher.Constraint("Horizontal", 13, 3, 1, 2),
    Sketcher.Constraint("Horizontal", 1, 2, 5, 2),
    Sketcher.Constraint("Horizontal", 8, 1, 9, 2),
    Sketcher.Constraint("Horizontal", 7, 2, 11, 1),
    Sketcher.Constraint("Vertical", 4, 2, 5, 2),
    Sketcher.Constraint("Diameter", 13, 3.0),
    Sketcher.Constraint("Radius", 1, 6.5),
    Sketcher.Constraint("Radius", 6, 3.5),
    Sketcher.Constraint("Radius", 8, 5.5),
    Sketcher.Constraint("DistanceY", 1, 3, -1, 1, 35.0),
    Sketcher.Constraint("DistanceX", 8, 1, 6, 2, 4.0),
    Sketcher.Constraint("DistanceY", 3, 2, -1, 1, 24.55),
])
sketch8.setExpression("Constraints[34]", "Params.sketch8_diameter")
sketch8.setExpression("Constraints[35]", "Params.sketch8_radius")
sketch8.setExpression("Constraints[36]", "Params.sketch8_radius2")
sketch8.setExpression("Constraints[37]", "Params.sketch8_radius3")
pad5 = body.newObject("PartDesign::Pad", "Pad004")
pad5.Profile = sketch8
pad5.setExpression("Length", "Params.pad5_length")

# Sketch on XY plane
sketch9 = body.newObject("Sketcher::SketchObject", "Sketch008")
sketch9.AttachmentSupport = (doc.getObject("XY_Plane"), [""])
sketch9.MapMode = "FlatFace"
sketch9.AttachmentOffset = App.Placement(V(0, 0, 6.1), App.Rotation())
sketch9.addGeometry([
    Part.Circle(V(0, -35, 0), V(0, 0, 1), 5.5),
    Part.Circle(V(0, -35, 0), V(0, 0, 1), 3.5),
], False)
sketch9.addConstraint([
    Sketcher.Constraint("Coincident", 1, 3, 0, 3),
    Sketcher.Constraint("PointOnObject", 0, 3, -2),
    Sketcher.Constraint("Diameter", 0, 11.0),
    Sketcher.Constraint("Diameter", 1, 7.0),
    Sketcher.Constraint("DistanceY", 0, 3, -1, 1, 35.0),
])
sketch9.setExpression("Constraints[2]", "Params.sketch9_diameter")
sketch9.setExpression("Constraints[3]", "Params.sketch9_diameter2")
pad6 = body.newObject("PartDesign::Pad", "Pad005")
pad6.Profile = sketch9
pad6.setExpression("Length", "Params.pad6_length")
pad6.Reversed = True

# Sketch on XY plane
sketch10 = body.newObject("Sketcher::SketchObject", "Sketch009")
sketch10.AttachmentSupport = (doc.getObject("XY_Plane"), [""])
sketch10.MapMode = "FlatFace"
sketch10.AttachmentOffset = App.Placement(V(0, 0, 6.1), App.Rotation())
add_polygon(sketch10, [(-3.5, -31.5), (-3.5, -38.5), (3.5, -38.5), (3.5, -31.5)])  # lines 0-3
sketch10.addConstraint([
    Sketcher.Constraint("Vertical", 0),
    Sketcher.Constraint("Horizontal", 1),
    Sketcher.Constraint("Vertical", 2),
    Sketcher.Constraint("Horizontal", 3),
    Sketcher.Constraint("Equal", 3, 0),
    Sketcher.Constraint("DistanceX", 1, 1, 1, 2, 7.0),
    Sketcher.Constraint("DistanceX", 0, 2, -1, 1, 3.5),
    Sketcher.Constraint("DistanceY", 0, 2, -1, 1, 38.5),
])
sketch10.setExpression("Constraints[9]", "Params.sketch10_width")
pocket4 = body.newObject("PartDesign::Pocket", "Pocket003")
pocket4.Profile = sketch10
pocket4.setExpression("Length", "Params.pocket4_length")

# Sketch on XY plane
sketch11 = body.newObject("Sketcher::SketchObject", "Sketch010")
sketch11.AttachmentSupport = (doc.getObject("XY_Plane"), [""])
sketch11.MapMode = "FlatFace"
sketch11.AttachmentOffset = App.Placement(V(0, 0, 6.1), App.Rotation())
add_polygon(sketch11, [(-9.985057, -24.55), (-9.985057, -42.35935), (10.880269, -42.35935), (10.880269, -24.55)])  # lines 0-3
sketch11.addConstraint([
    Sketcher.Constraint("Vertical", 0),
    Sketcher.Constraint("Horizontal", 1),
    Sketcher.Constraint("Vertical", 2),
    Sketcher.Constraint("Horizontal", 3),
    Sketcher.Constraint("DistanceY", 2, 2, -1, 1, 24.55),
    Sketcher.Constraint("DistanceY", 0, 2, 0, 1, 17.80935),
    Sketcher.Constraint("DistanceX", 1, 1, 1, 2, 20.865327),
    Sketcher.Constraint("DistanceX", -1, 1, 1, 2, 10.880269),
])
pocket5 = body.newObject("PartDesign::Pocket", "Pocket004")
pocket5.Profile = sketch11
pocket5.setExpression("Length", "Params.pocket5_length")

# Sketch on XZ plane
sketch12 = body.newObject("Sketcher::SketchObject", "Sketch011")
sketch12.AttachmentSupport = (doc.getObject("XZ_Plane"), [""])
sketch12.MapMode = "FlatFace"
sketch12.AttachmentOffset = App.Placement(V(0, 0, 24.55), App.Rotation())
add_polygon(sketch12, [(-3.5, 0.6), (-3.5, -5.4), (3.5, -5.4), (3.5, 0.6)])  # lines 0-3
sketch12.addConstraint([
    Sketcher.Constraint("Vertical", 0),
    Sketcher.Constraint("Horizontal", 1),
    Sketcher.Constraint("Vertical", 2),
    Sketcher.Constraint("Horizontal", 3),
    Sketcher.Constraint("DistanceX", 1, 1, 1, 2, 7.0),
    Sketcher.Constraint("DistanceY", 0, 2, 0, 1, 6.0),
    Sketcher.Constraint("DistanceX", 0, 2, -1, 1, 3.5),
    Sketcher.Constraint("DistanceY", 0, 2, -1, 1, 5.4),
])
sketch12.setExpression("Constraints[8]", "Params.sketch12_width")
sketch12.setExpression("Constraints[9]", "Params.sketch12_height")
pad7 = body.newObject("PartDesign::Pad", "Pad006")
pad7.Profile = sketch12
pad7.setExpression("Length", "Params.pad7_length")
pad7.Reversed = True
doc.recompute()

fillet = body.newObject("PartDesign::Fillet", "Fillet")
fillet.Base = (pad7, edges_at(pad7, [(0, -18.55, 0.6)]))
fillet.setExpression("Radius", "Params.fillet_radius")

# Sketch on XZ plane
sketch13 = body.newObject("Sketcher::SketchObject", "Sketch012")
sketch13.AttachmentSupport = (doc.getObject("XZ_Plane"), [""])
sketch13.MapMode = "FlatFace"
sketch13.AttachmentOffset = App.Placement(V(0, 0, 24.55), App.Rotation())
sketch13.addGeometry([
    Part.Circle(V(0, 2.4, 0), V(0, 0, 1), 1.95),
    Part.Circle(V(0, -2.6, 0), V(0, 0, 1), 1.95),
], False)
sketch13.addConstraint([
    Sketcher.Constraint("Equal", 0, 1),
    Sketcher.Constraint("PointOnObject", 0, 3, -2),
    Sketcher.Constraint("PointOnObject", 1, 3, -2),
    Sketcher.Constraint("Diameter", 0, 3.9),
    Sketcher.Constraint("DistanceY", 1, 3, 0, 3, 5.0),
    Sketcher.Constraint("DistanceY", -1, 1, 0, 3, 2.4),
])
sketch13.setExpression("Constraints[3]", "Params.sketch13_diameter")
pad8 = body.newObject("PartDesign::Pad", "Pad007")
pad8.Profile = sketch13
pad8.setExpression("Length", "Params.pad8_length")

# Sketch on XY plane
sketch14 = body.newObject("Sketcher::SketchObject", "Sketch013")
sketch14.AttachmentSupport = (doc.getObject("XY_Plane"), [""])
sketch14.MapMode = "FlatFace"
sketch14.AttachmentOffset = App.Placement(V(0, 0, 6.1), App.Rotation())
sketch14.addGeometry([
    Part.LineSegment(V(-3.5, -5.477226, 0), V(-3.5, -20.477226, 0)),  # 0
    Part.LineSegment(V(-3.5, -20.477226, 0), V(3.5, -20.477226, 0)),  # 1
    Part.LineSegment(V(3.5, -20.477226, 0), V(3.5, -5.477226, 0)),  # 2
    Part.ArcOfCircle(Part.Circle(V(0, 0, 0), V(0, 0, 1), 6.5), math.radians(-57.42103), math.radians(237.42103)),  # 3
    Part.LineSegment(V(1.5, 3.162278, 0), V(1.5, 5.291503, 0)),  # 4
    Part.ArcOfCircle(Part.Circle(V(0, 0, 0), V(0, 0, 1), 5.5), math.radians(0), math.radians(74.17338)),  # 5
    Part.LineSegment(V(5.5, 0, 0), V(3.5, 0, 0)),  # 6
    Part.ArcOfCircle(Part.Circle(V(0, 0, 0), V(0, 0, 1), 3.5), math.radians(0), math.radians(64.623066)),  # 7
    Part.Circle(V(0, 0, 0), V(0, 0, 1), 2.95),  # 8
    Part.LineSegment(V(-1.5, 5.291503, 0), V(-1.5, 3.162278, 0)),  # 9
    Part.ArcOfCircle(Part.Circle(V(0, 0, 0), V(0, 0, 1), 3.5), math.radians(115.376934), math.radians(180)),  # 10
    Part.LineSegment(V(-3.5, 0, 0), V(-5.5, 0, 0)),  # 11
    Part.ArcOfCircle(Part.Circle(V(0, 0, 0), V(0, 0, 1), 5.5), math.radians(105.82662), math.radians(180)),  # 12
], False)
sketch14.addConstraint([
    Sketcher.Constraint("Coincident", 0, 2, 1, 1),
    Sketcher.Constraint("Coincident", 1, 2, 2, 1),
    Sketcher.Constraint("Coincident", 2, 2, 3, 1),
    Sketcher.Constraint("Coincident", 3, 2, 0, 1),
    Sketcher.Constraint("Coincident", 4, 2, 5, 2),
    Sketcher.Constraint("Coincident", 5, 1, 6, 1),
    Sketcher.Constraint("Coincident", 6, 2, 7, 1),
    Sketcher.Constraint("Coincident", 7, 2, 4, 1),
    Sketcher.Constraint("Coincident", 9, 2, 10, 1),
    Sketcher.Constraint("Coincident", 10, 2, 11, 1),
    Sketcher.Constraint("Coincident", 11, 2, 12, 2),
    Sketcher.Constraint("Coincident", 12, 1, 9, 1),
    Sketcher.Constraint("Vertical", 0),
    Sketcher.Constraint("Horizontal", 1),
    Sketcher.Constraint("Vertical", 2),
    Sketcher.Constraint("Vertical", 4),
    Sketcher.Constraint("Horizontal", 6),
    Sketcher.Constraint("Vertical", 9),
    Sketcher.Constraint("Horizontal", 11),
    Sketcher.Constraint("Coincident", 3, 3, -1, 1),
    Sketcher.Constraint("Coincident", 5, 3, -1, 1),
    Sketcher.Constraint("Coincident", 7, 3, -1, 1),
    Sketcher.Constraint("Coincident", 8, 3, -1, 1),
    Sketcher.Constraint("Coincident", 10, 3, -1, 1),
    Sketcher.Constraint("Coincident", 12, 3, -1, 1),
    Sketcher.Constraint("Equal", 7, 10),
    Sketcher.Constraint("Equal", 5, 12),
    Sketcher.Constraint("PointOnObject", 5, 1, -1),
    Sketcher.Constraint("PointOnObject", 10, 2, -1),
    Sketcher.Constraint("Horizontal", 2, 2, 3, 2),
    Sketcher.Constraint("Horizontal", 7, 2, 9, 2),
    Sketcher.Constraint("Vertical", 2, 2, 6, 2),
    Sketcher.Constraint("Diameter", 8, 5.9),
    Sketcher.Constraint("Radius", 3, 6.5),
    Sketcher.Constraint("Radius", 5, 5.5),
    Sketcher.Constraint("Radius", 7, 3.5),
    Sketcher.Constraint("DistanceY", 0, 2, 0, 1, 15.0),
    Sketcher.Constraint("DistanceX", 9, 2, 7, 2, 3.0),
])
sketch14.setExpression("Constraints[32]", "Params.sketch14_diameter")
sketch14.setExpression("Constraints[33]", "Params.sketch14_radius")
sketch14.setExpression("Constraints[34]", "Params.sketch14_radius2")
sketch14.setExpression("Constraints[35]", "Params.sketch14_radius3")
sketch14.setExpression("Constraints[36]", "Params.sketch14_height")
pocket6 = body.newObject("PartDesign::Pocket", "Pocket005")
pocket6.Profile = sketch14
pocket6.setExpression("Length", "Params.pocket6_length")

# Sketch on XY plane
sketch15 = body.newObject("Sketcher::SketchObject", "Sketch014")
sketch15.AttachmentSupport = (doc.getObject("XY_Plane"), [""])
sketch15.MapMode = "FlatFace"
sketch15.AttachmentOffset = App.Placement(V(0, 0, 4.6), App.Rotation())
sketch15.addGeometry([
    Part.LineSegment(V(3.5, -20.477226, 0), V(3.5, -5.477226, 0)),  # 0
    Part.ArcOfCircle(Part.Circle(V(0, 0, 0), V(0, 0, 1), 6.5), math.radians(-57.42103), math.radians(237.42103)),  # 1
    Part.LineSegment(V(-3.5, -5.477226, 0), V(-3.5, -20.477226, 0)),  # 2
    Part.LineSegment(V(-3.5, -20.477226, 0), V(3.5, -20.477226, 0)),  # 3
    Part.Circle(V(0, 0, 0), V(0, 0, 1), 2.95),  # 4
], False)
sketch15.addConstraint([
    Sketcher.Constraint("Coincident", 0, 2, 1, 1),
    Sketcher.Constraint("Coincident", 1, 2, 2, 1),
    Sketcher.Constraint("Coincident", 2, 2, 3, 1),
    Sketcher.Constraint("Coincident", 3, 2, 0, 1),
    Sketcher.Constraint("Vertical", 0),
    Sketcher.Constraint("Vertical", 2),
    Sketcher.Constraint("Horizontal", 3),
    Sketcher.Constraint("Coincident", 1, 3, -1, 1),
    Sketcher.Constraint("Coincident", 4, 3, -1, 1),
    Sketcher.Constraint("Horizontal", 0, 2, 1, 2),
    Sketcher.Constraint("Diameter", 4, 5.9),
    Sketcher.Constraint("Radius", 1, 6.5),
    Sketcher.Constraint("DistanceX", 3, 1, 3, 2, 7.0),
    Sketcher.Constraint("DistanceY", 0, 1, 0, 2, 15.0),
])
sketch15.setExpression("Constraints[10]", "Params.sketch15_diameter")
sketch15.setExpression("Constraints[11]", "Params.sketch15_radius")
sketch15.setExpression("Constraints[12]", "Params.sketch15_width")
sketch15.setExpression("Constraints[13]", "Params.sketch15_height")
pad9 = body.newObject("PartDesign::Pad", "Pad008")
pad9.Profile = sketch15
pad9.setExpression("Length", "Params.pad9_length")
pad9.Reversed = True

# Sketch on XY plane
sketch16 = body.newObject("Sketcher::SketchObject", "Sketch015")
sketch16.AttachmentSupport = (doc.getObject("XY_Plane"), [""])
sketch16.MapMode = "FlatFace"
sketch16.AttachmentOffset = App.Placement(V(0, 0, 4.6), App.Rotation())
sketch16.addGeometry(Part.Circle(V(0, 0, 0), V(0, 0, 1), 4.4), False)
sketch16.addConstraint([
    Sketcher.Constraint("Coincident", 0, 3, -1, 1),
    Sketcher.Constraint("Diameter", 0, 8.8),
])
sketch16.setExpression("Constraints[1]", "Params.sketch16_diameter")
pocket7 = body.newObject("PartDesign::Pocket", "Pocket006")
pocket7.Profile = sketch16
pocket7.Type = "ThroughAll"

# Sketch on XY plane
sketch17 = body.newObject("Sketcher::SketchObject", "Sketch016")
sketch17.AttachmentSupport = (doc.getObject("XY_Plane"), [""])
sketch17.MapMode = "FlatFace"
sketch17.AttachmentOffset = App.Placement(V(0, 0, 4.6), App.Rotation())
add_polygon(sketch17, [(-10.75337, 10.113673), (-10.75337, -20.477226), (10.376058, -20.477226), (10.376058, 10.113673)])  # lines 0-3
sketch17.addConstraint([
    Sketcher.Constraint("Vertical", 0),
    Sketcher.Constraint("Horizontal", 1),
    Sketcher.Constraint("Vertical", 2),
    Sketcher.Constraint("Horizontal", 3),
    Sketcher.Constraint("DistanceY", 0, 2, 0, 1, 30.590899),
    Sketcher.Constraint("DistanceX", 1, 1, 1, 2, 21.129428),
    Sketcher.Constraint("DistanceX", 0, 2, -1, 1, 10.75337),
    Sketcher.Constraint("DistanceY", 0, 2, -1, 1, 20.477226),
])
pocket8 = body.newObject("PartDesign::Pocket", "Pocket007")
pocket8.Profile = sketch17
pocket8.setExpression("Length", "Params.pocket8_length")

doc.recompute()
